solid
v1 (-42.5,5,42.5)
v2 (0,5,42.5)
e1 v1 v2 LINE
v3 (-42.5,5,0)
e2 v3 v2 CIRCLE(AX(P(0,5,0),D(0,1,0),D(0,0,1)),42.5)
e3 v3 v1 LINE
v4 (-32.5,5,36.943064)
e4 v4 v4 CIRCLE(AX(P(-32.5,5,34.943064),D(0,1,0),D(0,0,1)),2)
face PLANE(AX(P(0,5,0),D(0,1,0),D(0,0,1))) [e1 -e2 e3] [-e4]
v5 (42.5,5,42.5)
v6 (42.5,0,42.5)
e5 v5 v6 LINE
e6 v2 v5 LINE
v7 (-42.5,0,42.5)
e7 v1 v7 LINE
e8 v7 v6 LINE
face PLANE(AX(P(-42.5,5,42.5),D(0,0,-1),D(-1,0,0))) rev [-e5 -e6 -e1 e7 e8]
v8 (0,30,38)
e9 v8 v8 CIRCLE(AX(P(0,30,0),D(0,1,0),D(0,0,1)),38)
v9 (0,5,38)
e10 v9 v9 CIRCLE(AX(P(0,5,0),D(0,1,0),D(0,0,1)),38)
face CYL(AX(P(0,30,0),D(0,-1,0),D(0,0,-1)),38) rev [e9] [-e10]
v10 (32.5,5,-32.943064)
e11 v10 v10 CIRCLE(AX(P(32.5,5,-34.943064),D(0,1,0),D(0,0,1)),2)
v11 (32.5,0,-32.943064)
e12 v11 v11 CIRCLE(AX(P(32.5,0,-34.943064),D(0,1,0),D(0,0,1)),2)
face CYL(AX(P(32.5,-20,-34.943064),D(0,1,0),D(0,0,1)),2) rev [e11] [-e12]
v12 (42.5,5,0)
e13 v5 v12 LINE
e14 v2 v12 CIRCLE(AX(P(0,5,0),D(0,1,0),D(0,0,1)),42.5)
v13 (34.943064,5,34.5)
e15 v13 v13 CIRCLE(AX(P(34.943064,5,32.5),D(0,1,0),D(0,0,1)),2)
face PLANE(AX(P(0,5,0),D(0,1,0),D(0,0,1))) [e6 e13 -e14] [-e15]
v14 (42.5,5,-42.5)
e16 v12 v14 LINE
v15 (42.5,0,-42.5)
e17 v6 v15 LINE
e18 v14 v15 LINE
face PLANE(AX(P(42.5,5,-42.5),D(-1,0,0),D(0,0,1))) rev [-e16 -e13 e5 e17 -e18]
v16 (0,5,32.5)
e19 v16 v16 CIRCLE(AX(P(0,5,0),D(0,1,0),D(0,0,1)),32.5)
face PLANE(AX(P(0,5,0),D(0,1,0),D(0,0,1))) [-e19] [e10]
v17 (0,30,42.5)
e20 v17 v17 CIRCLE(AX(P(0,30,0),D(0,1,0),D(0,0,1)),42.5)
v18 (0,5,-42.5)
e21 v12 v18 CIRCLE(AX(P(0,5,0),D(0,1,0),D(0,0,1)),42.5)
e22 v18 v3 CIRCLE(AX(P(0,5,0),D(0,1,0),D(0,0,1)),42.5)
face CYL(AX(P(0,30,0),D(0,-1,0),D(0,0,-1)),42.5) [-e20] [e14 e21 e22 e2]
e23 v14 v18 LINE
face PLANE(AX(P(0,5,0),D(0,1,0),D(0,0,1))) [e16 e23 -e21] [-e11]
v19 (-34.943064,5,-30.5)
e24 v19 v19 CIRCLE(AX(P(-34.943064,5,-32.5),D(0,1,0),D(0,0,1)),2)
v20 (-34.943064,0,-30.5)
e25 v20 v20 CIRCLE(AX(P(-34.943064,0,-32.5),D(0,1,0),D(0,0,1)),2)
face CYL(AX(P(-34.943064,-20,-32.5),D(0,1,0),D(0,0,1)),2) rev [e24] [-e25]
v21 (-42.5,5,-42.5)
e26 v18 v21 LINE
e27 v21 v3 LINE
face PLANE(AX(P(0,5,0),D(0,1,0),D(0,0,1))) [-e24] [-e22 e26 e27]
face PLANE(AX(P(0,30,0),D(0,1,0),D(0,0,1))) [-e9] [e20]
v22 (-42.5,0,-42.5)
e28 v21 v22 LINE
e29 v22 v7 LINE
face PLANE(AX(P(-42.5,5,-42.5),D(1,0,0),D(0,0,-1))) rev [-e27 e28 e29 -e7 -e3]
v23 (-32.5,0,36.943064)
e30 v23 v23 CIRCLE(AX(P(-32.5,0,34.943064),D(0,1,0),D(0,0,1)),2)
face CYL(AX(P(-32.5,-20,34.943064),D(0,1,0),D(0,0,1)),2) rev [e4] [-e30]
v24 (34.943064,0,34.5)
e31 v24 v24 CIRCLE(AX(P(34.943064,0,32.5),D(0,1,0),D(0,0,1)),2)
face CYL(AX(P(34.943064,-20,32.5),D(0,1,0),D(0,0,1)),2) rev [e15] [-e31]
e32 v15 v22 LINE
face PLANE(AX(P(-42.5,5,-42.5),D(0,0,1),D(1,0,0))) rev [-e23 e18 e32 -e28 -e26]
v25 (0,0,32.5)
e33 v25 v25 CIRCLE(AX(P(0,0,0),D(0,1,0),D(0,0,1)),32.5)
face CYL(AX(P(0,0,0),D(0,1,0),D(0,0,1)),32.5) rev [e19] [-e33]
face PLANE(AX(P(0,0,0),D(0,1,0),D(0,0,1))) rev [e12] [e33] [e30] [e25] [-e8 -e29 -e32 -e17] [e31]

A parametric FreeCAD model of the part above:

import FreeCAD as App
import Part
import Sketcher
from FreeCAD import Vector
Q = App.Units.Quantity


def add_polygon(sketch, points):
    """Adds a closed chain of lines whose ends are joined by coincident constraints."""
    first, n = sketch.GeometryCount, len(points)
    for a, b in zip(points, points[1:] + points[:1]):
        sketch.addGeometry(Part.LineSegment(App.Vector(*a, 0), App.Vector(*b, 0)), False)
    for i in range(n):
        sketch.addConstraint(Sketcher.Constraint("Coincident", first + i, 2, first + (i + 1) % n, 1))

doc = App.newDocument("Part")
body = doc.addObject("PartDesign::Body", "Body")

# Sketch on XZ plane
sketch1 = doc.addObject("Sketcher::SketchObject", "Sketch")
body.addObject(sketch1)
sketch1.AttachmentSupport = (doc.XZ_Plane, [""])
sketch1.MapMode = "FlatFace"
add_polygon(sketch1, [(-42.5, -42.5), (-42.5, 42.5), (42.5, 42.5), (42.5, -42.5)])  # lines 0-3
sketch1.addConstraint(Sketcher.Constraint("Vertical", 0))
sketch1.addConstraint(Sketcher.Constraint("Horizontal", 1))
sketch1.addConstraint(Sketcher.Constraint("Vertical", 2))
sketch1.addConstraint(Sketcher.Constraint("Horizontal", 3))
sketch1.addConstraint(Sketcher.Constraint("Symmetric", 0, 2, 2, 2, -1, 1))
sketch1.addConstraint(Sketcher.Constraint("Equal", 3, 0))
sketch1.addConstraint(Sketcher.Constraint("DistanceX", 1, 1, 1, 2, Q("85 mm")))
pad1 = doc.addObject("PartDesign::Pad", "Pad")
body.addObject(pad1)
pad1.Profile = sketch1
pad1.Length = 5
pad1.Reversed = True

# Sketch on XZ plane
sketch2 = doc.addObject("Sketcher::SketchObject", "Sketch001")
body.addObject(sketch2)
sketch2.AttachmentSupport = (doc.XZ_Plane, [""])
sketch2.MapMode = "FlatFace"
sketch2.AttachmentOffset = App.Placement(Vector(0, 0, -5), App.Rotation())
sketch2.addGeometry(Part.Circle(Vector(0, 0, 0), Vector(0, 0, 1), 32.5), False)
sketch2.addConstraint(Sketcher.Constraint("Coincident", 0, 3, -1, 1))
sketch2.addConstraint(Sketcher.Constraint("Diameter", 0, Q("65 mm")))
pocket1 = doc.addObject("PartDesign::Pocket", "Pocket")
body.addObject(pocket1)
pocket1.Profile = sketch2
pocket1.Length = 5
pocket1.Reversed = True

# Sketch on XZ plane
sketch3 = doc.addObject("Sketcher::SketchObject", "Sketch002")
body.addObject(sketch3)
sketch3.AttachmentSupport = (doc.XZ_Plane, [""])
sketch3.MapMode = "FlatFace"
sketch3.AttachmentOffset = App.Placement(Vector(0, 0, -5), App.Rotation())
sketch3.addGeometry(Part.Circle(Vector(0, 0, 0), Vector(0, 0, 1), 42.5), False)
sketch3.addGeometry(Part.Circle(Vector(0, 0, 0), Vector(0, 0, 1), 38), False)
sketch3.addConstraint(Sketcher.Constraint("Coincident", 0, 3, -1, 1))
sketch3.addConstraint(Sketcher.Constraint("Coincident", 1, 3, -1, 1))
sketch3.addConstraint(Sketcher.Constraint("Diameter", 0, Q("85 mm")))
sketch3.addConstraint(Sketcher.Constraint("Diameter", 1, Q("76 mm")))
pad2 = doc.addObject("PartDesign::Pad", "Pad001")
body.addObject(pad2)
pad2.Profile = sketch3
pad2.Length = 25
pad2.Reversed = True

# Sketch on XZ plane
sketch4 = doc.addObject("Sketcher::SketchObject", "Sketch003")
body.addObject(sketch4)
sketch4.AttachmentSupport = (doc.XZ_Plane, [""])
sketch4.MapMode = "FlatFace"
sketch4.AttachmentOffset = App.Placement(Vector(0, 0, -5), App.Rotation())
sketch4.addGeometry(Part.Circle(Vector(-34.943064, -32.5, 0), Vector(0, 0, 1), 2), False)
sketch4.addGeometry(Part.Circle(Vector(32.5, -34.943064, 0), Vector(0, 0, 1), 2), False)
sketch4.addGeometry(Part.Circle(Vector(34.943064, 32.5, 0), Vector(0, 0, 1), 2), False)
sketch4.addGeometry(Part.Circle(Vector(-32.5, 34.943064, 0), Vector(0, 0, 1), 2), False)
sketch4.addConstraint(Sketcher.Constraint("Equal", 0, 1))
sketch4.addConstraint(Sketcher.Constraint("Equal", 1, 2))
sketch4.addConstraint(Sketcher.Constraint("Equal", 2, 3))
sketch4.addConstraint(Sketcher.Constraint("Symmetric", 0, 3, 2, 3, -1, 1))
sketch4.addConstraint(Sketcher.Constraint("Symmetric", 1, 3, 3, 3, -1, 1))
sketch4.addConstraint(Sketcher.Constraint("Diameter", 0, Q("4 mm")))
sketch4.addConstraint(Sketcher.Constraint("DistanceY", 0, 3, 2, 3, Q("65 mm")))
sketch4.addConstraint(Sketcher.Constraint("DistanceX", 3, 3, 1, 3, Q("65 mm")))
sketch4.addConstraint(Sketcher.Constraint("DistanceX", 0, 3, -1, 1, Q("34.943064 mm")))
sketch4.addConstraint(Sketcher.Constraint("DistanceY", 1, 3, -1, 1, Q("34.943064 mm")))
pocket2 = doc.addObject("PartDesign::Pocket", "Pocket001")
body.addObject(pocket2)
pocket2.Profile = sketch4
pocket2.Length = 25
pocket2.Reversed = True

doc.recompute()
